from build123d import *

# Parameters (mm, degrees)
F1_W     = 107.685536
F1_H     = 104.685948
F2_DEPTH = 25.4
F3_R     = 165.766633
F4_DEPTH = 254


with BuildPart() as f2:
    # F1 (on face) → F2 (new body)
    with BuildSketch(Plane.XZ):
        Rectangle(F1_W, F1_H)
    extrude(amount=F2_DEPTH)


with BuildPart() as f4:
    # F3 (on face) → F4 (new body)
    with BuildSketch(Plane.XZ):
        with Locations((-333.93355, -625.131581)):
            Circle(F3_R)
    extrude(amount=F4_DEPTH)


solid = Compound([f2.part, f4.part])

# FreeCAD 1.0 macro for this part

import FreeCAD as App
import Part
import Sketcher

V = App.Vector
Q = App.Units.Quantity

doc = App.newDocument("Part")
params = doc.addObject("Spreadsheet::Sheet", "Params")
for row, (alias, value) in enumerate([
    ("pad1_length", "1 in"),
    ("pad2_length", "10 in"),
], start=1):
    params.set(f"A{row}", alias)
    params.set(f"B{row}", "=" + value)
    params.setAlias(f"B{row}", alias)

body = doc.addObject("PartDesign::Body", "Body")

# Sketch on XZ plane
sketch1 = doc.addObject("Sketcher::SketchObject", "Sketch")
body.addObject(sketch1)
sketch1.AttachmentSupport = (doc.XZ_Plane, [""])
sketch1.MapMode = "FlatFace"
sketch1.addGeometry(Part.LineSegment(V(-54, 52, 0), V(-54, -52, 0)), False)
sketch1.addGeometry(Part.LineSegment(V(-54, -52, 0), V(54, -52, 0)), False)
sketch1.addGeometry(Part.LineSegment(V(54, -52, 0), V(54, 52, 0)), False)
sketch1.addGeometry(Part.LineSegment(V(54, 52, 0), V(-54, 52, 0)), False)
sketch1.addConstraint(Sketcher.Constraint("Coincident", 0, 2, 1, 1))
sketch1.addConstraint(Sketcher.Constraint("Coincident", 1, 2, 2, 1))
sketch1.addConstraint(Sketcher.Constraint("Coincident", 2, 2, 3, 1))
sketch1.addConstraint(Sketcher.Constraint("Coincident", 3, 2, 0, 1))
sketch1.addConstraint(Sketcher.Constraint("Vertical", 0))
sketch1.addConstraint(Sketcher.Constraint("Horizontal", 1))
sketch1.addConstraint(Sketcher.Constraint("Vertical", 2))
sketch1.addConstraint(Sketcher.Constraint("Horizontal", 3))
sketch1.addConstraint(Sketcher.Constraint("Symmetric", 0, 2, 2, 2, -1, 1))
sketch1.addConstraint(Sketcher.Constraint("DistanceX", 1, 1, 1, 2, Q("107.685536 mm")))
sketch1.addConstraint(Sketcher.Constraint("DistanceY", 0, 2, 0, 1, Q("104.685948 mm")))
pad1 = doc.addObject("PartDesign::Pad", "Pad")
body.addObject(pad1)
pad1.Profile = sketch1
pad1.setExpression("Length", "Params.pad1_length")
body2 = doc.addObject("PartDesign::Body", "Body001")

# Sketch on XZ plane
sketch2 = doc.addObject("Sketcher::SketchObject", "Sketch001")
body2.addObject(sketch2)
sketch2.AttachmentSupport = (doc.getObject("XZ_Plane001"), [""])
sketch2.MapMode = "FlatFace"
sketch2.addGeometry(Part.Circle(V(-334, -625, 0), V(0, 0, 1), 166), False)
sketch2.addConstraint(Sketcher.Constraint("Diameter", 0, Q("331.533266 mm")))
sketch2.addConstraint(Sketcher.Constraint("DistanceX", 0, 3, -1, 1, Q("333.93355 mm")))
sketch2.addConstraint(Sketcher.Constraint("DistanceY", 0, 3, -1, 1, Q("625.131581 mm")))
pad2 = doc.addObject("PartDesign::Pad", "Pad001")
body2.addObject(pad2)
pad2.Profile = sketch2
pad2.setExpression("Length", "Params.pad2_length")

doc.recompute()
